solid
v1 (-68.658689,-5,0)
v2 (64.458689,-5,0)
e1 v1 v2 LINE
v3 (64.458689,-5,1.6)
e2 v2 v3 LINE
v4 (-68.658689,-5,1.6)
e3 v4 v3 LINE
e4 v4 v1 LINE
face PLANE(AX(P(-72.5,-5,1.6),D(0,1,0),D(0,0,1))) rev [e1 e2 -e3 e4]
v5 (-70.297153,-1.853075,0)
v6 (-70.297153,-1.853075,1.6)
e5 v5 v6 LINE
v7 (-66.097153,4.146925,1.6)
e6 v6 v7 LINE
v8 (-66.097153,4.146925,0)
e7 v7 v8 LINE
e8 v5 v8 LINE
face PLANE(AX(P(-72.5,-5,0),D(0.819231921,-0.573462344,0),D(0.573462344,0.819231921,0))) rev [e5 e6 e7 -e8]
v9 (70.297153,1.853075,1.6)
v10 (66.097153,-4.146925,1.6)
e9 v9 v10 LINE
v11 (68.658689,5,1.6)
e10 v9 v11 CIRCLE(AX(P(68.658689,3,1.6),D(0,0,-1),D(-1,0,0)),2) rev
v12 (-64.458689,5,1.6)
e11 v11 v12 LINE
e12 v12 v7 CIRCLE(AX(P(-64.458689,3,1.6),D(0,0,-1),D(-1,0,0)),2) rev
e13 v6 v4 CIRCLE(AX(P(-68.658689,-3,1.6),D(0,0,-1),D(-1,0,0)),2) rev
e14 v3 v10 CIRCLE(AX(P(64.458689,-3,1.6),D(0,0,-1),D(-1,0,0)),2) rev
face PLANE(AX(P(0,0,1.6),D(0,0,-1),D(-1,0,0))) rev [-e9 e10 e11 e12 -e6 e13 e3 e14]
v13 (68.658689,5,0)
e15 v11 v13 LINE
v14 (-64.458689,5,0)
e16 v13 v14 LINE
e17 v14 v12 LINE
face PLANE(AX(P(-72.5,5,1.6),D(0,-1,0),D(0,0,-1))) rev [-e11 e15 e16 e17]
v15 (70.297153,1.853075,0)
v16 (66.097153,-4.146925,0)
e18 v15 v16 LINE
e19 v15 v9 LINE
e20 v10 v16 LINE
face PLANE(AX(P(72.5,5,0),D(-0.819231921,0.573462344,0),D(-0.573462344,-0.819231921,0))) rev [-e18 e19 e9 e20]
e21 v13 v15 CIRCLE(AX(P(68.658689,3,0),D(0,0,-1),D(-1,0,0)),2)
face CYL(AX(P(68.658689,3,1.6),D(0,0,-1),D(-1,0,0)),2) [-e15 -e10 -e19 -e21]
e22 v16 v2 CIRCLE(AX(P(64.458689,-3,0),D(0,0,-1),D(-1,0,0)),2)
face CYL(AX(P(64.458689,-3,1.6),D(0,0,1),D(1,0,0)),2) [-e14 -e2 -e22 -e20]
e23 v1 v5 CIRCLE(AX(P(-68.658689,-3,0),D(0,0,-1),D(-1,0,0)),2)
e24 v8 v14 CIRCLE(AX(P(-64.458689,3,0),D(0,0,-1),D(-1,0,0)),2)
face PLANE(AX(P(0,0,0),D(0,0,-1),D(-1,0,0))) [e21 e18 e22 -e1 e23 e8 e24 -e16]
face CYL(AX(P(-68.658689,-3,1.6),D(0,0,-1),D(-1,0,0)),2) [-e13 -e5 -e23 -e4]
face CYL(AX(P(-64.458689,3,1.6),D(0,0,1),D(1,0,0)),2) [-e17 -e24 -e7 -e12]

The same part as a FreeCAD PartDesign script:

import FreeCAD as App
import Part
import Sketcher
from FreeCAD import Vector


def edges_at(feature, points):
    """Names of the edges that pass closest to the given points."""
    edges = feature.Shape.Edges
    near = lambda p: min(range(len(edges)), key=lambda i: edges[i].distToShape(Part.Vertex(*p))[0])
    return sorted({f"Edge{near(p) + 1}" for p in points})

doc = App.newDocument("Part")
body = doc.addObject("PartDesign::Body", "Body")

sketch1 = body.newObject("Sketcher::SketchObject", "Sketch")
sketch1.AttachmentSupport = (doc.getObject("XY_Plane"), [""])
sketch1.MapMode = "FlatFace"
sketch1.addGeometry([
    Part.LineSegment(Vector(-72.5, 5, 0), Vector(-72.5, -5, 0)),
    Part.LineSegment(Vector(-72.5, -5, 0), Vector(72.5, -5, 0)),
    Part.LineSegment(Vector(72.5, -5, 0), Vector(72.5, 5, 0)),
    Part.LineSegment(Vector(72.5, 5, 0), Vector(-72.5, 5, 0)),
], False)
sketch1.addConstraint([
    Sketcher.Constraint("Coincident", 0, 2, 1, 1),
    Sketcher.Constraint("Coincident", 1, 2, 2, 1),
    Sketcher.Constraint("Coincident", 2, 2, 3, 1),
    Sketcher.Constraint("Coincident", 3, 2, 0, 1),
    Sketcher.Constraint("Vertical", 0),
    Sketcher.Constraint("Horizontal", 1),
    Sketcher.Constraint("Vertical", 2),
    Sketcher.Constraint("Horizontal", 3),
    Sketcher.Constraint("Symmetric", 0, 2, 2, 2, -1, 1),
    Sketcher.Constraint("DistanceX", 1, 1, 1, 2, 145.0),
    Sketcher.Constraint("DistanceY", 0, 2, 0, 1, 10.0),
])
pad1 = body.newObject("PartDesign::Pad", "Pad")
pad1.Profile = sketch1
pad1.Length = 1.6

sketch2 = body.newObject("Sketcher::SketchObject", "Sketch001")
sketch2.AttachmentSupport = (doc.getObject("XY_Plane"), [""])
sketch2.MapMode = "FlatFace"
sketch2.AttachmentOffset = App.Placement(Vector(0, 0, 1.6), App.Rotation())
sketch2.addGeometry([
    Part.LineSegment(Vector(-72.5, -5, 0), Vector(-65.5, 5, 0)),
    Part.LineSegment(Vector(-65.5, 5, 0), Vector(-72.5, 5, 0)),
    Part.LineSegment(Vector(-72.5, 5, 0), Vector(-72.5, -5, 0)),
    Part.LineSegment(Vector(72.5, 5, 0), Vector(65.5, -5, 0)),
    Part.LineSegment(Vector(65.5, -5, 0), Vector(72.5, -5, 0)),
    Part.LineSegment(Vector(72.5, -5, 0), Vector(72.5, 5, 0)),
], False)
sketch2.addConstraint([
    Sketcher.Constraint("Coincident", 0, 2, 1, 1),
    Sketcher.Constraint("Coincident", 1, 2, 2, 1),
    Sketcher.Constraint("Coincident", 2, 2, 0, 1),
    Sketcher.Constraint("Coincident", 3, 2, 4, 1),
    Sketcher.Constraint("Coincident", 4, 2, 5, 1),
    Sketcher.Constraint("Coincident", 5, 2, 3, 1),
    Sketcher.Constraint("Horizontal", 1),
    Sketcher.Constraint("Vertical", 2),
    Sketcher.Constraint("Horizontal", 4),
    Sketcher.Constraint("Vertical", 5),
    Sketcher.Constraint("Symmetric", 0, 2, 3, 2, -1, 1),
    Sketcher.Constraint("Symmetric", 2, 2, 5, 2, -1, 1),
    Sketcher.Constraint("Horizontal", 2, 2, 3, 2),
    Sketcher.Constraint("DistanceX", 1, 2, 1, 1, 7.0),
    Sketcher.Constraint("DistanceY", 2, 2, 2, 1, 10.0),
    Sketcher.Constraint("DistanceX", 0, 2, 3, 2, 131.0),
])
pocket1 = body.newObject("PartDesign::Pocket", "Pocket")
pocket1.Profile = sketch2
pocket1.Type = "ThroughAll"
doc.recompute()

fillet = body.newObject("PartDesign::Fillet", "Fillet")
fillet.Base = (pocket1, edges_at(pocket1, [
    (-65.5, 5, 0.8),
    (65.5, -5, 0.8),
    (-72.5, -5, 0.8),
    (72.5, 5, 0.8),
]))
fillet.Radius = 2

doc.recompute()
